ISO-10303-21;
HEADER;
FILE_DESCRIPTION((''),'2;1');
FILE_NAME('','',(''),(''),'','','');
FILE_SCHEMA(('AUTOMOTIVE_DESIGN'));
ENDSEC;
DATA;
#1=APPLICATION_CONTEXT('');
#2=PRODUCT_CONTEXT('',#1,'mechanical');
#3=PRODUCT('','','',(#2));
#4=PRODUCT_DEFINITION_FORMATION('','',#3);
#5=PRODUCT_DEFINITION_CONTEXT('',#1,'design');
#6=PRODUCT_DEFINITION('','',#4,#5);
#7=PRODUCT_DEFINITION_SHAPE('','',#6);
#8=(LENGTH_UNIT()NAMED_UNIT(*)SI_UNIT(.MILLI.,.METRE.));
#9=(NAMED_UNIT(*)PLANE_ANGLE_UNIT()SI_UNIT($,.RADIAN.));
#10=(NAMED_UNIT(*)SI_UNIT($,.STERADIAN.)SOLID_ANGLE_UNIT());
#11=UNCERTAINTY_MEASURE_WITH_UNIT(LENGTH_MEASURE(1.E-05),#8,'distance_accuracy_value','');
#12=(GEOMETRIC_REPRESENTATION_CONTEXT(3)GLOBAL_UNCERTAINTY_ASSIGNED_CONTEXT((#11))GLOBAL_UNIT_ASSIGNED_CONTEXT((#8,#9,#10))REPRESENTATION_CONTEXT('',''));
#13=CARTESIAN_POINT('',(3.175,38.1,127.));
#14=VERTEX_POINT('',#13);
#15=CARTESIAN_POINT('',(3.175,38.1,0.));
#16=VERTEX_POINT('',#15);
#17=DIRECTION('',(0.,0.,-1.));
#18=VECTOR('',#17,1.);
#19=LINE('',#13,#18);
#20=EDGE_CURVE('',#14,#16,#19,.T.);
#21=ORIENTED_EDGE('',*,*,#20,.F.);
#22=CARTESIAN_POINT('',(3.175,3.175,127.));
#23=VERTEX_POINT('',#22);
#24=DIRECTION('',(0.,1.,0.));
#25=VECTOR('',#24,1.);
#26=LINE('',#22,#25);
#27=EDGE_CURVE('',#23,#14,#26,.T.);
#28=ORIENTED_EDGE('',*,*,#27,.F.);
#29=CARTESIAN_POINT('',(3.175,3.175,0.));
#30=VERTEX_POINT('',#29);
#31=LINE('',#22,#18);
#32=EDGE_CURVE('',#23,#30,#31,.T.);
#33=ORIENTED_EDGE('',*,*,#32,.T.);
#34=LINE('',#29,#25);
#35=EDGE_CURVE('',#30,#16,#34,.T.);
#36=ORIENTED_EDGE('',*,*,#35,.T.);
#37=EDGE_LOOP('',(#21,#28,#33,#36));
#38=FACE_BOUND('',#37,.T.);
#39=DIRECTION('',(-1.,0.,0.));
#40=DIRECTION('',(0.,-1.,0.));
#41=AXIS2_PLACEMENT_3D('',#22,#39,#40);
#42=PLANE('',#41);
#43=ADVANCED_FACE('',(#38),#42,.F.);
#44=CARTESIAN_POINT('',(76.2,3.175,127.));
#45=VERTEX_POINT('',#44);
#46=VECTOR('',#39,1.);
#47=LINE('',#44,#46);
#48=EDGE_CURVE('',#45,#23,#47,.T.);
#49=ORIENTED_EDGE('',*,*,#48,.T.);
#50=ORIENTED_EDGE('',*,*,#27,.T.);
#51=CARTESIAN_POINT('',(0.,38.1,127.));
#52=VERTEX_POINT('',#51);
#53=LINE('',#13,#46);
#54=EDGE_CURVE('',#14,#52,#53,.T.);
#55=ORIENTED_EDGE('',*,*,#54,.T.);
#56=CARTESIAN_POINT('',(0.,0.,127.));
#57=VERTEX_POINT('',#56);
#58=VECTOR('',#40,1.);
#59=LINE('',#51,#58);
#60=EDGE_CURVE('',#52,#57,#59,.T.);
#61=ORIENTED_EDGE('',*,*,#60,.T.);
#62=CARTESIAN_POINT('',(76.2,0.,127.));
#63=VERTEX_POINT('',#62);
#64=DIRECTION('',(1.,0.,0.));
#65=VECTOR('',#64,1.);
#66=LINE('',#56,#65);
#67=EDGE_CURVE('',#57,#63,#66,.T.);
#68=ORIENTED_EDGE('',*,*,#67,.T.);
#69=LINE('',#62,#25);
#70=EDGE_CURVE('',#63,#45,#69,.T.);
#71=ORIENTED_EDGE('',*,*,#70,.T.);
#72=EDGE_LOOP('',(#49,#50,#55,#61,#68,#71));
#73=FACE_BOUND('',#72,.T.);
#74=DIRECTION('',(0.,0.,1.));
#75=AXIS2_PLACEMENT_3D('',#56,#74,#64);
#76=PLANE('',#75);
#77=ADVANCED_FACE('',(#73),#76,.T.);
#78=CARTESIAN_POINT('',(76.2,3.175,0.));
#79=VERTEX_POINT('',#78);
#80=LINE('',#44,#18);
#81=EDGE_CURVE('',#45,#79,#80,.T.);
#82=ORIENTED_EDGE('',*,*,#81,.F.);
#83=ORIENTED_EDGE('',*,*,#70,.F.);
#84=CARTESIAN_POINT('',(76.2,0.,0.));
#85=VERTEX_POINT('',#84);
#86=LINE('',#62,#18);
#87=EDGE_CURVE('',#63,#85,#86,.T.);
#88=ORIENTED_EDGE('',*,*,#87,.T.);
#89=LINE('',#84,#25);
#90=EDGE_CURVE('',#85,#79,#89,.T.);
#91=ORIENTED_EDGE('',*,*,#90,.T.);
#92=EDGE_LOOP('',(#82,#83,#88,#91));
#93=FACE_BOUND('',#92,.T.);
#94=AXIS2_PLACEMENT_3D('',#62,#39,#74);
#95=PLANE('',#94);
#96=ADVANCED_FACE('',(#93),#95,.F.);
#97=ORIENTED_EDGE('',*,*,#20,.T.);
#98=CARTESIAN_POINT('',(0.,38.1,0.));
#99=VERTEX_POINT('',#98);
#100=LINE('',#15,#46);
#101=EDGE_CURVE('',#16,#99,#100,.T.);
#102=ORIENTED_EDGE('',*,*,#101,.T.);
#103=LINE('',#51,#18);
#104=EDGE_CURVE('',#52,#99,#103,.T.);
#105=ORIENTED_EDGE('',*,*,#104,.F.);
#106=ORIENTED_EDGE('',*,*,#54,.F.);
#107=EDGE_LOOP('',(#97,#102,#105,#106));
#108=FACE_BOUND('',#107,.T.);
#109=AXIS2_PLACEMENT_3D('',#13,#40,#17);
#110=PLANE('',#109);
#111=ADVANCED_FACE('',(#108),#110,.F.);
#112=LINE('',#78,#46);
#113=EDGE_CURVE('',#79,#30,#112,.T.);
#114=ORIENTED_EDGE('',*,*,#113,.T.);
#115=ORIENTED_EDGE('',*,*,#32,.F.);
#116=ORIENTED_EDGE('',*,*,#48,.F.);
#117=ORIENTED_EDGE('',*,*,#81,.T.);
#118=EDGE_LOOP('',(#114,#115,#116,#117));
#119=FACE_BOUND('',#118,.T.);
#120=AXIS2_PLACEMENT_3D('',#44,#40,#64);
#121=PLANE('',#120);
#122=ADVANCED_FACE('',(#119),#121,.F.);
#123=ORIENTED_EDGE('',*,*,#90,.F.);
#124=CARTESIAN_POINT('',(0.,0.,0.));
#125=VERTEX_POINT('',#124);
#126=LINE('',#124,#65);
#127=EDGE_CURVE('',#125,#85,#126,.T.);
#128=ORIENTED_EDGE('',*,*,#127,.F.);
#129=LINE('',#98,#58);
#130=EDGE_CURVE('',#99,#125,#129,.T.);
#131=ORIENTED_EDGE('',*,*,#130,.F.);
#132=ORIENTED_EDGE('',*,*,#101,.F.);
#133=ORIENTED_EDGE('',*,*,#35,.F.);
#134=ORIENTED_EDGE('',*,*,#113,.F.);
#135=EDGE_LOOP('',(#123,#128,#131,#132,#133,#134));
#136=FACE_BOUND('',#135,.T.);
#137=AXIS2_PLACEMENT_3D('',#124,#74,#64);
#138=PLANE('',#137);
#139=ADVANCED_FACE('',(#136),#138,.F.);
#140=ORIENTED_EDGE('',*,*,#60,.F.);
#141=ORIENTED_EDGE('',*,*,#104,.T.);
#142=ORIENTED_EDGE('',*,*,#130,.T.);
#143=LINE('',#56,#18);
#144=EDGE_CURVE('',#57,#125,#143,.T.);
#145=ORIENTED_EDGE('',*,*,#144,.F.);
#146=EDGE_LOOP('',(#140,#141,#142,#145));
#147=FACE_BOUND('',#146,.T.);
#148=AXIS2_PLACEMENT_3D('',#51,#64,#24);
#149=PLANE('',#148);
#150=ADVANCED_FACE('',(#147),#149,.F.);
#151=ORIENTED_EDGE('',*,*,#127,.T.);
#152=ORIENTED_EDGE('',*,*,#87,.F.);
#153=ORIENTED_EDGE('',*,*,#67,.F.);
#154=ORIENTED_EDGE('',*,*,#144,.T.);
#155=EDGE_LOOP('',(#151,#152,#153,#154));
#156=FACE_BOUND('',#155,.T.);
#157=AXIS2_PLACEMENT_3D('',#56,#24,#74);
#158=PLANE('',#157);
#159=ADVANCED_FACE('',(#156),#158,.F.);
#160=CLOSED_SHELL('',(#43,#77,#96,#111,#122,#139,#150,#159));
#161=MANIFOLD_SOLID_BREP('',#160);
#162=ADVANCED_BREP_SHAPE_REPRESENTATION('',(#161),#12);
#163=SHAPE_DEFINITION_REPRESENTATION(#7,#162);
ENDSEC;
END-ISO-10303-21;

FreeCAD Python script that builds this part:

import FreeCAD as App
import Part
import Sketcher
Q = App.Units.Quantity

doc = App.newDocument("Part")
body = doc.addObject("PartDesign::Body", "Body")

# Sketch on XY plane
sketch1 = body.newObject("Sketcher::SketchObject", "Sketch")
sketch1.AttachmentSupport = (doc.getObject("XY_Plane"), [""])
sketch1.MapMode = "FlatFace"
sketch1.addGeometry([
    Part.LineSegment(App.Vector(0, 0, 0), App.Vector(76.2, 0, 0)),  # 0
    Part.LineSegment(App.Vector(76.2, 0, 0), App.Vector(76.2, 3.2, 0)),  # 1
    Part.LineSegment(App.Vector(76.2, 3.2, 0), App.Vector(3.2, 3.2, 0)),  # 2
    Part.LineSegment(App.Vector(3.2, 3.2, 0), App.Vector(3.2, 38.1, 0)),  # 3
    Part.LineSegment(App.Vector(3.2, 38.1, 0), App.Vector(0, 38.1, 0)),  # 4
    Part.LineSegment(App.Vector(0, 38.1, 0), App.Vector(0, 0, 0)),  # 5
], False)
sketch1.addConstraint([
    Sketcher.Constraint("Coincident", 0, 2, 1, 1),
    Sketcher.Constraint("Coincident", 1, 2, 2, 1),
    Sketcher.Constraint("Coincident", 2, 2, 3, 1),
    Sketcher.Constraint("Coincident", 3, 2, 4, 1),
    Sketcher.Constraint("Coincident", 4, 2, 5, 1),
    Sketcher.Constraint("Coincident", 5, 2, 0, 1),
    Sketcher.Constraint("Horizontal", 0),
    Sketcher.Constraint("Vertical", 1),
    Sketcher.Constraint("Horizontal", 2),
    Sketcher.Constraint("Vertical", 3),
    Sketcher.Constraint("Horizontal", 4),
    Sketcher.Constraint("Vertical", 5),
    Sketcher.Constraint("Coincident", 5, 2, -1, 1),
    Sketcher.Constraint("Equal", 4, 1),
    Sketcher.Constraint("DistanceX", 0, 1, 0, 2, Q("3 in")),
    Sketcher.Constraint("DistanceY", 5, 2, 5, 1, Q("1.5 in")),
    Sketcher.Constraint("DistanceX", 2, 2, 2, 1, Q("2.875 in")),
])
pad1 = body.newObject("PartDesign::Pad", "Pad")
pad1.Profile = sketch1
pad1.Length = Q("5 in")

doc.recompute()
